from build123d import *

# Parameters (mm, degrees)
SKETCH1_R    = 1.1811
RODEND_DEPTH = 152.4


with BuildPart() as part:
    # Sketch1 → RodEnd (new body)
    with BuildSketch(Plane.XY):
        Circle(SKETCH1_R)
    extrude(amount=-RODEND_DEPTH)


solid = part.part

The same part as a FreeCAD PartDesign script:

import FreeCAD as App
import Part
import Sketcher
from FreeCAD import Vector
Q = App.Units.Quantity

doc = App.newDocument("Part")
body = doc.addObject("PartDesign::Body", "Body")

sketch1 = body.newObject("Sketcher::SketchObject", "Sketch")
sketch1.AttachmentSupport = (doc.getObject("XY_Plane"), [""])
sketch1.MapMode = "FlatFace"
sketch1.addGeometry(Part.Circle(Vector(0, 0, 0), Vector(0, 0, 1), 1.2), False)
sketch1.addConstraint(Sketcher.Constraint("Coincident", 0, 3, -1, 1))
sketch1.addConstraint(Sketcher.Constraint("Diameter", 0, Q("0.093 in")))
pad1 = body.newObject("PartDesign::Pad", "Pad")
pad1.Profile = sketch1
pad1.Length = Q("6 in")
pad1.Reversed = True

doc.recompute()
